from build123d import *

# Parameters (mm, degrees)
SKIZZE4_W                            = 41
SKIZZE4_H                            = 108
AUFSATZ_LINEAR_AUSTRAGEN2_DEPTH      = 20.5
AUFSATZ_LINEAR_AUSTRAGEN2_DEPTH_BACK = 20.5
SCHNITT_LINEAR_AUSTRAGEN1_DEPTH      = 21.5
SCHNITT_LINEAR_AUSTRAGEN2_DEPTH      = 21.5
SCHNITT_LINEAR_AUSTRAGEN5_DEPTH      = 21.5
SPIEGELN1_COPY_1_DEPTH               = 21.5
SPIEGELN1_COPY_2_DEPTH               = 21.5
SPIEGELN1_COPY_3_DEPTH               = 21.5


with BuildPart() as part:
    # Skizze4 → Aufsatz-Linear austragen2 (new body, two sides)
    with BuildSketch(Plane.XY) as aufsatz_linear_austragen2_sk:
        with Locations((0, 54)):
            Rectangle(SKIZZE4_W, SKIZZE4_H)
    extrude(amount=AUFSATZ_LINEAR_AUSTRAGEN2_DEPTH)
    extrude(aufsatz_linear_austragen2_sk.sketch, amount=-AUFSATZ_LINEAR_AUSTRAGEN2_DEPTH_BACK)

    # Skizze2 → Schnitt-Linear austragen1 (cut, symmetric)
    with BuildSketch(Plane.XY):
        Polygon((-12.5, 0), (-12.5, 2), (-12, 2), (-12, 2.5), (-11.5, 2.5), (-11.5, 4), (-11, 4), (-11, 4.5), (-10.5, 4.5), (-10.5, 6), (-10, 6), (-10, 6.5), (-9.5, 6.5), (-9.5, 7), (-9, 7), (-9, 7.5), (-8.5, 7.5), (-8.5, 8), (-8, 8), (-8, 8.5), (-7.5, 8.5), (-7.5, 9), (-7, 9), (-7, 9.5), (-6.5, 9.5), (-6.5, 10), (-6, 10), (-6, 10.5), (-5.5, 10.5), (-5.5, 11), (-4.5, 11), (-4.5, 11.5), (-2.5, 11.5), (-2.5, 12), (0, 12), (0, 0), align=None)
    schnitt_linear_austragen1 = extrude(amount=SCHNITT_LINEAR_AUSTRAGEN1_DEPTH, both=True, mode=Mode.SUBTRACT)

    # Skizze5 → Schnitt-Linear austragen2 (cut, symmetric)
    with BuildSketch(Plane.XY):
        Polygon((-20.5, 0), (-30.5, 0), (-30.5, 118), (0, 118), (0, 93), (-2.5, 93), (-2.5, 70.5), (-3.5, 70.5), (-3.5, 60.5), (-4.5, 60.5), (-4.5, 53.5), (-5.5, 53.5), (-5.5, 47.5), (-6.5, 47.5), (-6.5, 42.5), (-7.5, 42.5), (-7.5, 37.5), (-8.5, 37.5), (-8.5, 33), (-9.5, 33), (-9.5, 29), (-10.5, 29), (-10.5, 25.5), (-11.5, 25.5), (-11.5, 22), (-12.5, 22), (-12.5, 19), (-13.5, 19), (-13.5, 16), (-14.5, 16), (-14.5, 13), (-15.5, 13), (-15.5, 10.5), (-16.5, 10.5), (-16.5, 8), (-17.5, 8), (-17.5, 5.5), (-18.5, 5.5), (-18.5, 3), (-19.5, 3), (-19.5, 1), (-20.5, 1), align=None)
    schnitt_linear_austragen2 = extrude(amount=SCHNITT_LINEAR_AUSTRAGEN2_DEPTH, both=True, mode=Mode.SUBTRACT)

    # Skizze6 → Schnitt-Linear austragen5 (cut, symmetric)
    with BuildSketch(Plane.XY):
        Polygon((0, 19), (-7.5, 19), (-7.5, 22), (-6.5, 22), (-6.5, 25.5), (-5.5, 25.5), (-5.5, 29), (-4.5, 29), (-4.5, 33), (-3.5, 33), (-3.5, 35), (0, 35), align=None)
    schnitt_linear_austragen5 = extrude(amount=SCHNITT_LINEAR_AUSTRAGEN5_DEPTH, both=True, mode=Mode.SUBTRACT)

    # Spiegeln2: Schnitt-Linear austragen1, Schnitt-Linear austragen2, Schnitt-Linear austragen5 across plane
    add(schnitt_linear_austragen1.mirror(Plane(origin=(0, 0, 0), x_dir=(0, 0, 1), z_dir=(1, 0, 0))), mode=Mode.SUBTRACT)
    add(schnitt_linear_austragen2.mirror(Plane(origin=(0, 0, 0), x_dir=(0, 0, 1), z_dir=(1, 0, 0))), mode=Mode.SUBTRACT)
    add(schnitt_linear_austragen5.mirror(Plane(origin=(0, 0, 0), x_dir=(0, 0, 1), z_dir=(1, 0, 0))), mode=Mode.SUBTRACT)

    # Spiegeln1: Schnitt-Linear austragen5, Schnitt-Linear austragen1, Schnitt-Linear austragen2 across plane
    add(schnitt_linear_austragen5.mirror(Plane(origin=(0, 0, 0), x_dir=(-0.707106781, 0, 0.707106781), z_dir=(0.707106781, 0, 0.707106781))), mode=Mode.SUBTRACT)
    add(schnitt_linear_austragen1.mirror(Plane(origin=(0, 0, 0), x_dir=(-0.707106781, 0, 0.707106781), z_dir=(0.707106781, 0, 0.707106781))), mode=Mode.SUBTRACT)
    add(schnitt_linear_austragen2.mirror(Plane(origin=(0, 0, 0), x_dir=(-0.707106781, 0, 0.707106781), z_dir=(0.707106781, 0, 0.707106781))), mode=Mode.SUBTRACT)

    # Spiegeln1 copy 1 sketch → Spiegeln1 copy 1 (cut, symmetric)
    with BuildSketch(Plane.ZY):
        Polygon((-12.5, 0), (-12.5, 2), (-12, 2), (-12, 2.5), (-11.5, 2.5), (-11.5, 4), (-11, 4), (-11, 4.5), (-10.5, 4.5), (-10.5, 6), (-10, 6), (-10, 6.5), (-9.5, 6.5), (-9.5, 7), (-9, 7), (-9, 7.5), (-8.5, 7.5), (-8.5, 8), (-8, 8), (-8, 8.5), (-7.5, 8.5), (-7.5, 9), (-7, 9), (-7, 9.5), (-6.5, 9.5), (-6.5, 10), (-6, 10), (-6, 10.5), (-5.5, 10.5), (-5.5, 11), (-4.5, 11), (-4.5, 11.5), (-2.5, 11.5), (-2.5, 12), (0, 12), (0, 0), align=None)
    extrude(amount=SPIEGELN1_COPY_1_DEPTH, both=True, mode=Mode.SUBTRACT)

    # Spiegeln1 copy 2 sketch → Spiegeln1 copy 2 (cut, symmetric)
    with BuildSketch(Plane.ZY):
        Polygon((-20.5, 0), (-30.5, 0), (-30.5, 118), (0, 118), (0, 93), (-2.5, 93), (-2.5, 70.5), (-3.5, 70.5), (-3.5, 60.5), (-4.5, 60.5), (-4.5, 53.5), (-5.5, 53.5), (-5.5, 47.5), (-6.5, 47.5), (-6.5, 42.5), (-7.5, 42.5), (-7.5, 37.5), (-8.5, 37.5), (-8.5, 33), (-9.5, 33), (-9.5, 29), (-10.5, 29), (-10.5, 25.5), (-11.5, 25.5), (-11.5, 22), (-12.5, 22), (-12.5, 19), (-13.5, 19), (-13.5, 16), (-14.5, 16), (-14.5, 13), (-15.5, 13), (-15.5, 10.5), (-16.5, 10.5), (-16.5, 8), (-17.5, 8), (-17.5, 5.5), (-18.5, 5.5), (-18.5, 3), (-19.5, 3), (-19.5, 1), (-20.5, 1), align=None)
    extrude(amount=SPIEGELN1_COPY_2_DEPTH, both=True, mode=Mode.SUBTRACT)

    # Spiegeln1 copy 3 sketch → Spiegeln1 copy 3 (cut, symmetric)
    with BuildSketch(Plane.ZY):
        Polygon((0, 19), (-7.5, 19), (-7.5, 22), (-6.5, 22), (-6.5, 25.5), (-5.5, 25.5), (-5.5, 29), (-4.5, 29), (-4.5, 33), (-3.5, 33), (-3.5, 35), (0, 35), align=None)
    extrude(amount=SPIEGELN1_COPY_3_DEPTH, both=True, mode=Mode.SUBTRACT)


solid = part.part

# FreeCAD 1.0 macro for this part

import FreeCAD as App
import Part
import Sketcher

doc = App.newDocument("Part")
body = doc.addObject("PartDesign::Body", "Body")

# Sketch on XY plane
sketch1 = body.newObject("Sketcher::SketchObject", "Sketch")
sketch1.AttachmentSupport = (doc.getObject("XY_Plane"), [""])
sketch1.MapMode = "FlatFace"
sketch1.addGeometry([
    Part.LineSegment(App.Vector(-20, 108, 0), App.Vector(-20, 0, 0)),
    Part.LineSegment(App.Vector(-20, 0, 0), App.Vector(20, 0, 0)),
    Part.LineSegment(App.Vector(20, 0, 0), App.Vector(20, 108, 0)),
    Part.LineSegment(App.Vector(20, 108, 0), App.Vector(-20, 108, 0)),
], False)
sketch1.addConstraint([
    Sketcher.Constraint("Coincident", 0, 2, 1, 1),
    Sketcher.Constraint("Coincident", 1, 2, 2, 1),
    Sketcher.Constraint("Coincident", 2, 2, 3, 1),
    Sketcher.Constraint("Coincident", 3, 2, 0, 1),
    Sketcher.Constraint("Vertical", 0),
    Sketcher.Constraint("Horizontal", 1),
    Sketcher.Constraint("Vertical", 2),
    Sketcher.Constraint("Horizontal", 3),
    Sketcher.Constraint("Symmetric", 0, 2, 1, 2, -1, 1),
    Sketcher.Constraint("DistanceX", 1, 1, 1, 2, 41.0),
    Sketcher.Constraint("DistanceY", 0, 2, 0, 1, 108.0),
])
pad1 = body.newObject("PartDesign::Pad", "Pad")
pad1.Profile = sketch1
pad1.Type = "TwoLengths"
pad1.Length = 20.5
pad1.Length2 = 20.5

# Sketch on XY plane
sketch2 = body.newObject("Sketcher::SketchObject", "Sketch001")
sketch2.AttachmentSupport = (doc.getObject("XY_Plane"), [""])
sketch2.MapMode = "FlatFace"
sketch2.addGeometry([
    Part.LineSegment(App.Vector(-12.5, 2, 0), App.Vector(-12.5, 0, 0)),  # 0
    Part.LineSegment(App.Vector(-12.5, 0, 0), App.Vector(0, 0, 0)),  # 1
    Part.LineSegment(App.Vector(0, 0, 0), App.Vector(0, 12, 0)),  # 2
    Part.LineSegment(App.Vector(0, 12, 0), App.Vector(-2.5, 12, 0)),  # 3
    Part.LineSegment(App.Vector(-2.5, 12, 0), App.Vector(-2.5, 11.5, 0)),  # 4
    Part.LineSegment(App.Vector(-2.5, 11.5, 0), App.Vector(-4.5, 11.5, 0)),  # 5
    Part.LineSegment(App.Vector(-4.5, 11.5, 0), App.Vector(-4.5, 11, 0)),  # 6
    Part.LineSegment(App.Vector(-4.5, 11, 0), App.Vector(-5.5, 11, 0)),  # 7
    Part.LineSegment(App.Vector(-5.5, 11, 0), App.Vector(-5.5, 10.5, 0)),  # 8
    Part.LineSegment(App.Vector(-5.5, 10.5, 0), App.Vector(-6, 10.5, 0)),  # 9
    Part.LineSegment(App.Vector(-6, 10.5, 0), App.Vector(-6, 10, 0)),  # 10
    Part.LineSegment(App.Vector(-6, 10, 0), App.Vector(-6.5, 10, 0)),  # 11
    Part.LineSegment(App.Vector(-6.5, 10, 0), App.Vector(-6.5, 9.5, 0)),  # 12
    Part.LineSegment(App.Vector(-6.5, 9.5, 0), App.Vector(-7, 9.5, 0)),  # 13
    Part.LineSegment(App.Vector(-7, 9.5, 0), App.Vector(-7, 9, 0)),  # 14
    Part.LineSegment(App.Vector(-7, 9, 0), App.Vector(-7.5, 9, 0)),  # 15
    Part.LineSegment(App.Vector(-7.5, 9, 0), App.Vector(-7.5, 8.5, 0)),  # 16
    Part.LineSegment(App.Vector(-7.5, 8.5, 0), App.Vector(-8, 8.5, 0)),  # 17
    Part.LineSegment(App.Vector(-8, 8.5, 0), App.Vector(-8, 8, 0)),  # 18
    Part.LineSegment(App.Vector(-8, 8, 0), App.Vector(-8.5, 8, 0)),  # 19
    Part.LineSegment(App.Vector(-8.5, 8, 0), App.Vector(-8.5, 7.5, 0)),  # 20
    Part.LineSegment(App.Vector(-8.5, 7.5, 0), App.Vector(-9, 7.5, 0)),  # 21
    Part.LineSegment(App.Vector(-9, 7.5, 0), App.Vector(-9, 7, 0)),  # 22
    Part.LineSegment(App.Vector(-9, 7, 0), App.Vector(-9.5, 7, 0)),  # 23
    Part.LineSegment(App.Vector(-9.5, 7, 0), App.Vector(-9.5, 6.5, 0)),  # 24
    Part.LineSegment(App.Vector(-9.5, 6.5, 0), App.Vector(-10, 6.5, 0)),  # 25
    Part.LineSegment(App.Vector(-10, 6.5, 0), App.Vector(-10, 6, 0)),  # 26
    Part.LineSegment(App.Vector(-10, 6, 0), App.Vector(-10.5, 6, 0)),  # 27
    Part.LineSegment(App.Vector(-10.5, 6, 0), App.Vector(-10.5, 4.5, 0)),  # 28
    Part.LineSegment(App.Vector(-10.5, 4.5, 0), App.Vector(-11, 4.5, 0)),  # 29
    Part.LineSegment(App.Vector(-11, 4.5, 0), App.Vector(-11, 4, 0)),  # 30
    Part.LineSegment(App.Vector(-11, 4, 0), App.Vector(-11.5, 4, 0)),  # 31
    Part.LineSegment(App.Vector(-11.5, 4, 0), App.Vector(-11.5, 2.5, 0)),  # 32
    Part.LineSegment(App.Vector(-11.5, 2.5, 0), App.Vector(-12, 2.5, 0)),  # 33
    Part.LineSegment(App.Vector(-12, 2.5, 0), App.Vector(-12, 2, 0)),  # 34
    Part.LineSegment(App.Vector(-12, 2, 0), App.Vector(-12.5, 2, 0)),  # 35
], False)
sketch2.addConstraint([
    Sketcher.Constraint("Coincident", 0, 2, 1, 1),
    Sketcher.Constraint("Coincident", 1, 2, 2, 1),
    Sketcher.Constraint("Coincident", 2, 2, 3, 1),
    Sketcher.Constraint("Coincident", 3, 2, 4, 1),
    Sketcher.Constraint("Coincident", 4, 2, 5, 1),
    Sketcher.Constraint("Coincident", 5, 2, 6, 1),
    Sketcher.Constraint("Coincident", 6, 2, 7, 1),
    Sketcher.Constraint("Coincident", 7, 2, 8, 1),
    Sketcher.Constraint("Coincident", 8, 2, 9, 1),
    Sketcher.Constraint("Coincident", 9, 2, 10, 1),
    Sketcher.Constraint("Coincident", 10, 2, 11, 1),
    Sketcher.Constraint("Coincident", 11, 2, 12, 1),
    Sketcher.Constraint("Coincident", 12, 2, 13, 1),
    Sketcher.Constraint("Coincident", 13, 2, 14, 1),
    Sketcher.Constraint("Coincident", 14, 2, 15, 1),
    Sketcher.Constraint("Coincident", 15, 2, 16, 1),
    Sketcher.Constraint("Coincident", 16, 2, 17, 1),
    Sketcher.Constraint("Coincident", 17, 2, 18, 1),
    Sketcher.Constraint("Coincident", 18, 2, 19, 1),
    Sketcher.Constraint("Coincident", 19, 2, 20, 1),
    Sketcher.Constraint("Coincident", 20, 2, 21, 1),
    Sketcher.Constraint("Coincident", 21, 2, 22, 1),
    Sketcher.Constraint("Coincident", 22, 2, 23, 1),
    Sketcher.Constraint("Coincident", 23, 2, 24, 1),
    Sketcher.Constraint("Coincident", 24, 2, 25, 1),
    Sketcher.Constraint("Coincident", 25, 2, 26, 1),
    Sketcher.Constraint("Coincident", 26, 2, 27, 1),
    Sketcher.Constraint("Coincident", 27, 2, 28, 1),
    Sketcher.Constraint("Coincident", 28, 2, 29, 1),
    Sketcher.Constraint("Coincident", 29, 2, 30, 1),
    Sketcher.Constraint("Coincident", 30, 2, 31, 1),
    Sketcher.Constraint("Coincident", 31, 2, 32, 1),
    Sketcher.Constraint("Coincident", 32, 2, 33, 1),
    Sketcher.Constraint("Coincident", 33, 2, 34, 1),
    Sketcher.Constraint("Coincident", 34, 2, 35, 1),
    Sketcher.Constraint("Coincident", 35, 2, 0, 1),
    Sketcher.Constraint("Vertical", 0),
    Sketcher.Constraint("Horizontal", 1),
    Sketcher.Constraint("Vertical", 2),
    Sketcher.Constraint("Horizontal", 3),
    Sketcher.Constraint("Vertical", 4),
    Sketcher.Constraint("Horizontal", 5),
    Sketcher.Constraint("Vertical", 6),
    Sketcher.Constraint("Horizontal", 7),
    Sketcher.Constraint("Vertical", 8),
    Sketcher.Constraint("Horizontal", 9),
    Sketcher.Constraint("Vertical", 10),
    Sketcher.Constraint("Horizontal", 11),
    Sketcher.Constraint("Vertical", 12),
    Sketcher.Constraint("Horizontal", 13),
    Sketcher.Constraint("Vertical", 14),
    Sketcher.Constraint("Horizontal", 15),
    Sketcher.Constraint("Vertical", 16),
    Sketcher.Constraint("Horizontal", 17),
    Sketcher.Constraint("Vertical", 18),
    Sketcher.Constraint("Horizontal", 19),
    Sketcher.Constraint("Vertical", 20),
    Sketcher.Constraint("Horizontal", 21),
    Sketcher.Constraint("Vertical", 22),
    Sketcher.Constraint("Horizontal", 23),
    Sketcher.Constraint("Vertical", 24),
    Sketcher.Constraint("Horizontal", 25),
    Sketcher.Constraint("Vertical", 26),
    Sketcher.Constraint("Horizontal", 27),
    Sketcher.Constraint("Vertical", 28),
    Sketcher.Constraint("Horizontal", 29),
    Sketcher.Constraint("Vertical", 30),
    Sketcher.Constraint("Horizontal", 31),
    Sketcher.Constraint("Vertical", 32),
    Sketcher.Constraint("Horizontal", 33),
    Sketcher.Constraint("Vertical", 34),
    Sketcher.Constraint("Horizontal", 35),
    Sketcher.Constraint("Coincident", 1, 2, -1, 1),
    Sketcher.Constraint("Equal", 9, 11),
    Sketcher.Constraint("Equal", 11, 13),
    Sketcher.Constraint("Equal", 13, 15),
    Sketcher.Constraint("Equal", 15, 17),
    Sketcher.Constraint("Equal", 17, 19),
    Sketcher.Constraint("Equal", 19, 21),
    Sketcher.Constraint("Equal", 21, 23),
    Sketcher.Constraint("Equal", 23, 25),
    Sketcher.Constraint("Equal", 25, 27),
    Sketcher.Constraint("Equal", 27, 29),
    Sketcher.Constraint("Equal", 29, 31),
    Sketcher.Constraint("Equal", 31, 33),
    Sketcher.Constraint("Equal", 33, 35),
    Sketcher.Constraint("Equal", 5, 0),
    Sketcher.Constraint("Equal", 35, 4),
    Sketcher.Constraint("Equal", 4, 6),
    Sketcher.Constraint("Equal", 6, 8),
    Sketcher.Constraint("Equal", 8, 10),
    Sketcher.Constraint("Equal", 10, 12),
    Sketcher.Constraint("Equal", 12, 14),
    Sketcher.Constraint("Equal", 14, 16),
    Sketcher.Constraint("Equal", 16, 18),
    Sketcher.Constraint("Equal", 18, 20),
    Sketcher.Constraint("Equal", 20, 22),
    Sketcher.Constraint("Equal", 22, 24),
    Sketcher.Constraint("Equal", 24, 26),
    Sketcher.Constraint("Equal", 26, 30),
    Sketcher.Constraint("Equal", 28, 32),
    Sketcher.Constraint("Equal", 30, 34),
    Sketcher.Constraint("DistanceX", 5, 2, 5, 1, 2.0),
    Sketcher.Constraint("DistanceX", 7, 2, 7, 1, 1.0),
    Sketcher.Constraint("DistanceY", 2, 1, 2, 2, 12.0),
    Sketcher.Constraint("DistanceX", 1, 1, 1, 2, 12.5),
    Sketcher.Constraint("DistanceX", 3, 2, 3, 1, 2.5),
])
pocket1 = body.newObject("PartDesign::Pocket", "Pocket")
pocket1.Profile = sketch2
pocket1.Length = 43
pocket1.Midplane = True

# Sketch on XY plane
sketch3 = body.newObject("Sketcher::SketchObject", "Sketch002")
sketch3.AttachmentSupport = (doc.getObject("XY_Plane"), [""])
sketch3.MapMode = "FlatFace"
sketch3.addGeometry([
    Part.LineSegment(App.Vector(-30.5, 0, 0), App.Vector(-20.5, 0, 0)),  # 0
    Part.LineSegment(App.Vector(-20.5, 0, 0), App.Vector(-20.5, 1, 0)),  # 1
    Part.LineSegment(App.Vector(-20.5, 1, 0), App.Vector(-19.5, 1, 0)),  # 2
    Part.LineSegment(App.Vector(-19.5, 1, 0), App.Vector(-19.5, 3, 0)),  # 3
    Part.LineSegment(App.Vector(-19.5, 3, 0), App.Vector(-18.5, 3, 0)),  # 4
    Part.LineSegment(App.Vector(-18.5, 3, 0), App.Vector(-18.5, 5.5, 0)),  # 5
    Part.LineSegment(App.Vector(-18.5, 5.5, 0), App.Vector(-17.5, 5.5, 0)),  # 6
    Part.LineSegment(App.Vector(-17.5, 5.5, 0), App.Vector(-17.5, 8, 0)),  # 7
    Part.LineSegment(App.Vector(-17.5, 8, 0), App.Vector(-16.5, 8, 0)),  # 8
    Part.LineSegment(App.Vector(-16.5, 8, 0), App.Vector(-16.5, 10.5, 0)),  # 9
    Part.LineSegment(App.Vector(-16.5, 10.5, 0), App.Vector(-15.5, 10.5, 0)),  # 10
    Part.LineSegment(App.Vector(-15.5, 10.5, 0), App.Vector(-15.5, 13, 0)),  # 11
    Part.LineSegment(App.Vector(-15.5, 13, 0), App.Vector(-14.5, 13, 0)),  # 12
    Part.LineSegment(App.Vector(-14.5, 13, 0), App.Vector(-14.5, 16, 0)),  # 13
    Part.LineSegment(App.Vector(-14.5, 16, 0), App.Vector(-13.5, 16, 0)),  # 14
    Part.LineSegment(App.Vector(-13.5, 16, 0), App.Vector(-13.5, 19, 0)),  # 15
    Part.LineSegment(App.Vector(-13.5, 19, 0), App.Vector(-12.5, 19, 0)),  # 16
    Part.LineSegment(App.Vector(-12.5, 19, 0), App.Vector(-12.5, 22, 0)),  # 17
    Part.LineSegment(App.Vector(-12.5, 22, 0), App.Vector(-11.5, 22, 0)),  # 18
    Part.LineSegment(App.Vector(-11.5, 22, 0), App.Vector(-11.5, 25.5, 0)),  # 19
    Part.LineSegment(App.Vector(-11.5, 25.5, 0), App.Vector(-10.5, 25.5, 0)),  # 20
    Part.LineSegment(App.Vector(-10.5, 25.5, 0), App.Vector(-10.5, 29, 0)),  # 21
    Part.LineSegment(App.Vector(-10.5, 29, 0), App.Vector(-9.5, 29, 0)),  # 22
    Part.LineSegment(App.Vector(-9.5, 29, 0), App.Vector(-9.5, 33, 0)),  # 23
    Part.LineSegment(App.Vector(-9.5, 33, 0), App.Vector(-8.5, 33, 0)),  # 24
    Part.LineSegment(App.Vector(-8.5, 33, 0), App.Vector(-8.5, 37.5, 0)),  # 25
    Part.LineSegment(App.Vector(-8.5, 37.5, 0), App.Vector(-7.5, 37.5, 0)),  # 26
    Part.LineSegment(App.Vector(-7.5, 37.5, 0), App.Vector(-7.5, 42.5, 0)),  # 27
    Part.LineSegment(App.Vector(-7.5, 42.5, 0), App.Vector(-6.5, 42.5, 0)),  # 28
    Part.LineSegment(App.Vector(-6.5, 42.5, 0), App.Vector(-6.5, 47.5, 0)),  # 29
    Part.LineSegment(App.Vector(-6.5, 47.5, 0), App.Vector(-5.5, 47.5, 0)),  # 30
    Part.LineSegment(App.Vector(-5.5, 47.5, 0), App.Vector(-5.5, 53.5, 0)),  # 31
    Part.LineSegment(App.Vector(-5.5, 53.5, 0), App.Vector(-4.5, 53.5, 0)),  # 32
    Part.LineSegment(App.Vector(-4.5, 53.5, 0), App.Vector(-4.5, 60.5, 0)),  # 33
    Part.LineSegment(App.Vector(-4.5, 60.5, 0), App.Vector(-3.5, 60.5, 0)),  # 34
    Part.LineSegment(App.Vector(-3.5, 60.5, 0), App.Vector(-3.5, 70.5, 0)),  # 35
    Part.LineSegment(App.Vector(-3.5, 70.5, 0), App.Vector(-2.5, 70.5, 0)),  # 36
    Part.LineSegment(App.Vector(-2.5, 70.5, 0), App.Vector(-2.5, 93, 0)),  # 37
    Part.LineSegment(App.Vector(-2.5, 93, 0), App.Vector(0, 93, 0)),  # 38
    Part.LineSegment(App.Vector(0, 93, 0), App.Vector(0, 118, 0)),  # 39
    Part.LineSegment(App.Vector(0, 118, 0), App.Vector(-30.5, 118, 0)),  # 40
    Part.LineSegment(App.Vector(-30.5, 118, 0), App.Vector(-30.5, 0, 0)),  # 41
], False)
sketch3.addConstraint([
    Sketcher.Constraint("Coincident", 0, 2, 1, 1),
    Sketcher.Constraint("Coincident", 1, 2, 2, 1),
    Sketcher.Constraint("Coincident", 2, 2, 3, 1),
    Sketcher.Constraint("Coincident", 3, 2, 4, 1),
    Sketcher.Constraint("Coincident", 4, 2, 5, 1),
    Sketcher.Constraint("Coincident", 5, 2, 6, 1),
    Sketcher.Constraint("Coincident", 6, 2, 7, 1),
    Sketcher.Constraint("Coincident", 7, 2, 8, 1),
    Sketcher.Constraint("Coincident", 8, 2, 9, 1),
    Sketcher.Constraint("Coincident", 9, 2, 10, 1),
    Sketcher.Constraint("Coincident", 10, 2, 11, 1),
    Sketcher.Constraint("Coincident", 11, 2, 12, 1),
    Sketcher.Constraint("Coincident", 12, 2, 13, 1),
    Sketcher.Constraint("Coincident", 13, 2, 14, 1),
    Sketcher.Constraint("Coincident", 14, 2, 15, 1),
    Sketcher.Constraint("Coincident", 15, 2, 16, 1),
    Sketcher.Constraint("Coincident", 16, 2, 17, 1),
    Sketcher.Constraint("Coincident", 17, 2, 18, 1),
    Sketcher.Constraint("Coincident", 18, 2, 19, 1),
    Sketcher.Constraint("Coincident", 19, 2, 20, 1),
    Sketcher.Constraint("Coincident", 20, 2, 21, 1),
    Sketcher.Constraint("Coincident", 21, 2, 22, 1),
    Sketcher.Constraint("Coincident", 22, 2, 23, 1),
    Sketcher.Constraint("Coincident", 23, 2, 24, 1),
    Sketcher.Constraint("Coincident", 24, 2, 25, 1),
    Sketcher.Constraint("Coincident", 25, 2, 26, 1),
    Sketcher.Constraint("Coincident", 26, 2, 27, 1),
    Sketcher.Constraint("Coincident", 27, 2, 28, 1),
    Sketcher.Constraint("Coincident", 28, 2, 29, 1),
    Sketcher.Constraint("Coincident", 29, 2, 30, 1),
    Sketcher.Constraint("Coincident", 30, 2, 31, 1),
    Sketcher.Constraint("Coincident", 31, 2, 32, 1),
    Sketcher.Constraint("Coincident", 32, 2, 33, 1),
    Sketcher.Constraint("Coincident", 33, 2, 34, 1),
    Sketcher.Constraint("Coincident", 34, 2, 35, 1),
    Sketcher.Constraint("Coincident", 35, 2, 36, 1),
    Sketcher.Constraint("Coincident", 36, 2, 37, 1),
    Sketcher.Constraint("Coincident", 37, 2, 38, 1),
    Sketcher.Constraint("Coincident", 38, 2, 39, 1),
    Sketcher.Constraint("Coincident", 39, 2, 40, 1),
    Sketcher.Constraint("Coincident", 40, 2, 41, 1),
    Sketcher.Constraint("Coincident", 41, 2, 0, 1),
    Sketcher.Constraint("Horizontal", 0),
    Sketcher.Constraint("Vertical", 1),
    Sketcher.Constraint("Horizontal", 2),
    Sketcher.Constraint("Vertical", 3),
    Sketcher.Constraint("Horizontal", 4),
    Sketcher.Constraint("Vertical", 5),
    Sketcher.Constraint("Horizontal", 6),
    Sketcher.Constraint("Vertical", 7),
    Sketcher.Constraint("Horizontal", 8),
    Sketcher.Constraint("Vertical", 9),
    Sketcher.Constraint("Horizontal", 10),
    Sketcher.Constraint("Vertical", 11),
    Sketcher.Constraint("Horizontal", 12),
    Sketcher.Constraint("Vertical", 13),
    Sketcher.Constraint("Horizontal", 14),
    Sketcher.Constraint("Vertical", 15),
    Sketcher.Constraint("Horizontal", 16),
    Sketcher.Constraint("Vertical", 17),
    Sketcher.Constraint("Horizontal", 18),
    Sketcher.Constraint("Vertical", 19),
    Sketcher.Constraint("Horizontal", 20),
    Sketcher.Constraint("Vertical", 21),
    Sketcher.Constraint("Horizontal", 22),
    Sketcher.Constraint("Vertical", 23),
    Sketcher.Constraint("Horizontal", 24),
    Sketcher.Constraint("Vertical", 25),
    Sketcher.Constraint("Horizontal", 26),
    Sketcher.Constraint("Vertical", 27),
    Sketcher.Constraint("Horizontal", 28),
    Sketcher.Constraint("Vertical", 29),
    Sketcher.Constraint("Horizontal", 30),
    Sketcher.Constraint("Vertical", 31),
    Sketcher.Constraint("Horizontal", 32),
    Sketcher.Constraint("Vertical", 33),
    Sketcher.Constraint("Horizontal", 34),
    Sketcher.Constraint("Vertical", 35),
    Sketcher.Constraint("Horizontal", 36),
    Sketcher.Constraint("Vertical", 37),
    Sketcher.Constraint("Horizontal", 38),
    Sketcher.Constraint("Vertical", 39),
    Sketcher.Constraint("Horizontal", 40),
    Sketcher.Constraint("Vertical", 41),
    Sketcher.Constraint("PointOnObject", 0, 2, -1),
    Sketcher.Constraint("PointOnObject", 38, 2, -2),
    Sketcher.Constraint("Equal", 2, 4),
    Sketcher.Constraint("Equal", 4, 6),
    Sketcher.Constraint("Equal", 6, 8),
    Sketcher.Constraint("Equal", 8, 10),
    Sketcher.Constraint("Equal", 10, 12),
    Sketcher.Constraint("Equal", 12, 14),
    Sketcher.Constraint("Equal", 14, 16),
    Sketcher.Constraint("Equal", 16, 18),
    Sketcher.Constraint("Equal", 18, 20),
    Sketcher.Constraint("Equal", 20, 22),
    Sketcher.Constraint("Equal", 22, 24),
    Sketcher.Constraint("Equal", 24, 26),
    Sketcher.Constraint("Equal", 26, 28),
    Sketcher.Constraint("Equal", 28, 30),
    Sketcher.Constraint("Equal", 30, 32),
    Sketcher.Constraint("Equal", 32, 34),
    Sketcher.Constraint("Equal", 34, 36),
    Sketcher.Constraint("Equal", 36, 1),
    Sketcher.Constraint("Equal", 38, 5),
    Sketcher.Constraint("Equal", 5, 7),
    Sketcher.Constraint("Equal", 7, 9),
    Sketcher.Constraint("Equal", 9, 11),
    Sketcher.Constraint("Equal", 13, 15),
    Sketcher.Constraint("Equal", 15, 17),
    Sketcher.Constraint("Equal", 19, 21),
    Sketcher.Constraint("Equal", 27, 29),
    Sketcher.Constraint("Equal", 0, 35),
    Sketcher.Constraint("DistanceX", 0, 1, 0, 2, 10.0),
    Sketcher.Constraint("DistanceX", 2, 1, 2, 2, 1.0),
    Sketcher.Constraint("DistanceY", 3, 1, 3, 2, 2.0),
    Sketcher.Constraint("DistanceY", 13, 1, 13, 2, 3.0),
    Sketcher.Constraint("DistanceY", 23, 1, 23, 2, 4.0),
    Sketcher.Constraint("DistanceY", 27, 1, 27, 2, 5.0),
    Sketcher.Constraint("DistanceY", 31, 1, 31, 2, 6.0),
    Sketcher.Constraint("DistanceY", 33, 1, 33, 2, 7.0),
    Sketcher.Constraint("DistanceY", 39, 1, 39, 2, 25.0),
    Sketcher.Constraint("DistanceY", 41, 2, 41, 1, 118.0),
    Sketcher.Constraint("DistanceX", 38, 1, 38, 2, 2.5),
    Sketcher.Constraint("DistanceY", 19, 1, 19, 2, 3.5),
    Sketcher.Constraint("DistanceY", 25, 1, 25, 2, 4.5),
])
pocket2 = body.newObject("PartDesign::Pocket", "Pocket001")
pocket2.Profile = sketch3
pocket2.Length = 43
pocket2.Midplane = True

# Sketch on XY plane
sketch4 = body.newObject("Sketcher::SketchObject", "Sketch003")
sketch4.AttachmentSupport = (doc.getObject("XY_Plane"), [""])
sketch4.MapMode = "FlatFace"
sketch4.addGeometry([
    Part.LineSegment(App.Vector(-7.5, 19, 0), App.Vector(0, 19, 0)),  # 0
    Part.LineSegment(App.Vector(0, 19, 0), App.Vector(0, 35, 0)),  # 1
    Part.LineSegment(App.Vector(0, 35, 0), App.Vector(-3.5, 35, 0)),  # 2
    Part.LineSegment(App.Vector(-3.5, 35, 0), App.Vector(-3.5, 33, 0)),  # 3
    Part.LineSegment(App.Vector(-3.5, 33, 0), App.Vector(-4.5, 33, 0)),  # 4
    Part.LineSegment(App.Vector(-4.5, 33, 0), App.Vector(-4.5, 29, 0)),  # 5
    Part.LineSegment(App.Vector(-4.5, 29, 0), App.Vector(-5.5, 29, 0)),  # 6
    Part.LineSegment(App.Vector(-5.5, 29, 0), App.Vector(-5.5, 25.5, 0)),  # 7
    Part.LineSegment(App.Vector(-5.5, 25.5, 0), App.Vector(-6.5, 25.5, 0)),  # 8
    Part.LineSegment(App.Vector(-6.5, 25.5, 0), App.Vector(-6.5, 22, 0)),  # 9
    Part.LineSegment(App.Vector(-6.5, 22, 0), App.Vector(-7.5, 22, 0)),  # 10
    Part.LineSegment(App.Vector(-7.5, 22, 0), App.Vector(-7.5, 19, 0)),  # 11
], False)
sketch4.addConstraint([
    Sketcher.Constraint("Coincident", 0, 2, 1, 1),
    Sketcher.Constraint("Coincident", 1, 2, 2, 1),
    Sketcher.Constraint("Coincident", 2, 2, 3, 1),
    Sketcher.Constraint("Coincident", 3, 2, 4, 1),
    Sketcher.Constraint("Coincident", 4, 2, 5, 1),
    Sketcher.Constraint("Coincident", 5, 2, 6, 1),
    Sketcher.Constraint("Coincident", 6, 2, 7, 1),
    Sketcher.Constraint("Coincident", 7, 2, 8, 1),
    Sketcher.Constraint("Coincident", 8, 2, 9, 1),
    Sketcher.Constraint("Coincident", 9, 2, 10, 1),
    Sketcher.Constraint("Coincident", 10, 2, 11, 1),
    Sketcher.Constraint("Coincident", 11, 2, 0, 1),
    Sketcher.Constraint("Horizontal", 0),
    Sketcher.Constraint("Vertical", 1),
    Sketcher.Constraint("Horizontal", 2),
    Sketcher.Constraint("Vertical", 3),
    Sketcher.Constraint("Horizontal", 4),
    Sketcher.Constraint("Vertical", 5),
    Sketcher.Constraint("Horizontal", 6),
    Sketcher.Constraint("Vertical", 7),
    Sketcher.Constraint("Horizontal", 8),
    Sketcher.Constraint("Vertical", 9),
    Sketcher.Constraint("Horizontal", 10),
    Sketcher.Constraint("Vertical", 11),
    Sketcher.Constraint("PointOnObject", 0, 2, -2),
    Sketcher.Constraint("Equal", 4, 6),
    Sketcher.Constraint("Equal", 6, 8),
    Sketcher.Constraint("Equal", 8, 10),
    Sketcher.Constraint("Equal", 2, 7),
    Sketcher.Constraint("Equal", 7, 9),
    Sketcher.Constraint("DistanceX", 4, 2, 4, 1, 1.0),
    Sketcher.Constraint("DistanceY", 1, 1, 1, 2, 16.0),
    Sketcher.Constraint("DistanceY", 3, 2, 3, 1, 2.0),
    Sketcher.Constraint("DistanceY", 5, 2, 5, 1, 4.0),
    Sketcher.Constraint("DistanceY", 11, 2, 11, 1, 3.0),
    Sketcher.Constraint("DistanceY", -1, 1, 0, 2, 19.0),
])
pocket3 = body.newObject("PartDesign::Pocket", "Pocket002")
pocket3.Profile = sketch4
pocket3.Length = 43
pocket3.Midplane = True
doc.recompute()

mirrored = body.newObject("PartDesign::Mirrored", "Mirrored")
mirrored.Originals = [pocket1, pocket2, pocket3]
mirrored.MirrorPlane = (doc.getObject("YZ_Plane"), [""])
body.Tip = mirrored
doc.recompute()

datumplane = body.newObject("PartDesign::Plane", "DatumPlane")
datumplane.Placement = App.Placement(App.Vector(0, 0, 0), App.Rotation(App.Vector(-0.707106781, 0, 0.707106781), App.Vector(0, -1, 0), App.Vector(0.707106781, 0, 0.707106781), "ZXY"))
mirrored2 = body.newObject("PartDesign::Mirrored", "Mirrored001")
mirrored2.Originals = [pocket3, pocket1, pocket2]
mirrored2.MirrorPlane = (datumplane, [""])
body.Tip = mirrored2

# Sketch on YZ plane
sketch5 = body.newObject("Sketcher::SketchObject", "Sketch004")
sketch5.AttachmentSupport = (doc.getObject("YZ_Plane"), [""])
sketch5.MapMode = "FlatFace"
sketch5.addGeometry([
    Part.LineSegment(App.Vector(2, -12.5, 0), App.Vector(0, -12.5, 0)),  # 0
    Part.LineSegment(App.Vector(0, -12.5, 0), App.Vector(0, 0, 0)),  # 1
    Part.LineSegment(App.Vector(0, 0, 0), App.Vector(12, 0, 0)),  # 2
    Part.LineSegment(App.Vector(12, 0, 0), App.Vector(12, -2.5, 0)),  # 3
    Part.LineSegment(App.Vector(12, -2.5, 0), App.Vector(11.5, -2.5, 0)),  # 4
    Part.LineSegment(App.Vector(11.5, -2.5, 0), App.Vector(11.5, -4.5, 0)),  # 5
    Part.LineSegment(App.Vector(11.5, -4.5, 0), App.Vector(11, -4.5, 0)),  # 6
    Part.LineSegment(App.Vector(11, -4.5, 0), App.Vector(11, -5.5, 0)),  # 7
    Part.LineSegment(App.Vector(11, -5.5, 0), App.Vector(10.5, -5.5, 0)),  # 8
    Part.LineSegment(App.Vector(10.5, -5.5, 0), App.Vector(10.5, -6, 0)),  # 9
    Part.LineSegment(App.Vector(10.5, -6, 0), App.Vector(10, -6, 0)),  # 10
    Part.LineSegment(App.Vector(10, -6, 0), App.Vector(10, -6.5, 0)),  # 11
    Part.LineSegment(App.Vector(10, -6.5, 0), App.Vector(9.5, -6.5, 0)),  # 12
    Part.LineSegment(App.Vector(9.5, -6.5, 0), App.Vector(9.5, -7, 0)),  # 13
    Part.LineSegment(App.Vector(9.5, -7, 0), App.Vector(9, -7, 0)),  # 14
    Part.LineSegment(App.Vector(9, -7, 0), App.Vector(9, -7.5, 0)),  # 15
    Part.LineSegment(App.Vector(9, -7.5, 0), App.Vector(8.5, -7.5, 0)),  # 16
    Part.LineSegment(App.Vector(8.5, -7.5, 0), App.Vector(8.5, -8, 0)),  # 17
    Part.LineSegment(App.Vector(8.5, -8, 0), App.Vector(8, -8, 0)),  # 18
    Part.LineSegment(App.Vector(8, -8, 0), App.Vector(8, -8.5, 0)),  # 19
    Part.LineSegment(App.Vector(8, -8.5, 0), App.Vector(7.5, -8.5, 0)),  # 20
    Part.LineSegment(App.Vector(7.5, -8.5, 0), App.Vector(7.5, -9, 0)),  # 21
    Part.LineSegment(App.Vector(7.5, -9, 0), App.Vector(7, -9, 0)),  # 22
    Part.LineSegment(App.Vector(7, -9, 0), App.Vector(7, -9.5, 0)),  # 23
    Part.LineSegment(App.Vector(7, -9.5, 0), App.Vector(6.5, -9.5, 0)),  # 24
    Part.LineSegment(App.Vector(6.5, -9.5, 0), App.Vector(6.5, -10, 0)),  # 25
    Part.LineSegment(App.Vector(6.5, -10, 0), App.Vector(6, -10, 0)),  # 26
    Part.LineSegment(App.Vector(6, -10, 0), App.Vector(6, -10.5, 0)),  # 27
    Part.LineSegment(App.Vector(6, -10.5, 0), App.Vector(4.5, -10.5, 0)),  # 28
    Part.LineSegment(App.Vector(4.5, -10.5, 0), App.Vector(4.5, -11, 0)),  # 29
    Part.LineSegment(App.Vector(4.5, -11, 0), App.Vector(4, -11, 0)),  # 30
    Part.LineSegment(App.Vector(4, -11, 0), App.Vector(4, -11.5, 0)),  # 31
    Part.LineSegment(App.Vector(4, -11.5, 0), App.Vector(2.5, -11.5, 0)),  # 32
    Part.LineSegment(App.Vector(2.5, -11.5, 0), App.Vector(2.5, -12, 0)),  # 33
    Part.LineSegment(App.Vector(2.5, -12, 0), App.Vector(2, -12, 0)),  # 34
    Part.LineSegment(App.Vector(2, -12, 0), App.Vector(2, -12.5, 0)),  # 35
], False)
sketch5.addConstraint([
    Sketcher.Constraint("Coincident", 0, 2, 1, 1),
    Sketcher.Constraint("Coincident", 1, 2, 2, 1),
    Sketcher.Constraint("Coincident", 2, 2, 3, 1),
    Sketcher.Constraint("Coincident", 3, 2, 4, 1),
    Sketcher.Constraint("Coincident", 4, 2, 5, 1),
    Sketcher.Constraint("Coincident", 5, 2, 6, 1),
    Sketcher.Constraint("Coincident", 6, 2, 7, 1),
    Sketcher.Constraint("Coincident", 7, 2, 8, 1),
    Sketcher.Constraint("Coincident", 8, 2, 9, 1),
    Sketcher.Constraint("Coincident", 9, 2, 10, 1),
    Sketcher.Constraint("Coincident", 10, 2, 11, 1),
    Sketcher.Constraint("Coincident", 11, 2, 12, 1),
    Sketcher.Constraint("Coincident", 12, 2, 13, 1),
    Sketcher.Constraint("Coincident", 13, 2, 14, 1),
    Sketcher.Constraint("Coincident", 14, 2, 15, 1),
    Sketcher.Constraint("Coincident", 15, 2, 16, 1),
    Sketcher.Constraint("Coincident", 16, 2, 17, 1),
    Sketcher.Constraint("Coincident", 17, 2, 18, 1),
    Sketcher.Constraint("Coincident", 18, 2, 19, 1),
    Sketcher.Constraint("Coincident", 19, 2, 20, 1),
    Sketcher.Constraint("Coincident", 20, 2, 21, 1),
    Sketcher.Constraint("Coincident", 21, 2, 22, 1),
    Sketcher.Constraint("Coincident", 22, 2, 23, 1),
    Sketcher.Constraint("Coincident", 23, 2, 24, 1),
    Sketcher.Constraint("Coincident", 24, 2, 25, 1),
    Sketcher.Constraint("Coincident", 25, 2, 26, 1),
    Sketcher.Constraint("Coincident", 26, 2, 27, 1),
    Sketcher.Constraint("Coincident", 27, 2, 28, 1),
    Sketcher.Constraint("Coincident", 28, 2, 29, 1),
    Sketcher.Constraint("Coincident", 29, 2, 30, 1),
    Sketcher.Constraint("Coincident", 30, 2, 31, 1),
    Sketcher.Constraint("Coincident", 31, 2, 32, 1),
    Sketcher.Constraint("Coincident", 32, 2, 33, 1),
    Sketcher.Constraint("Coincident", 33, 2, 34, 1),
    Sketcher.Constraint("Coincident", 34, 2, 35, 1),
    Sketcher.Constraint("Coincident", 35, 2, 0, 1),
    Sketcher.Constraint("Horizontal", 0),
    Sketcher.Constraint("Vertical", 1),
    Sketcher.Constraint("Horizontal", 2),
    Sketcher.Constraint("Vertical", 3),
    Sketcher.Constraint("Horizontal", 4),
    Sketcher.Constraint("Vertical", 5),
    Sketcher.Constraint("Horizontal", 6),
    Sketcher.Constraint("Vertical", 7),
    Sketcher.Constraint("Horizontal", 8),
    Sketcher.Constraint("Vertical", 9),
    Sketcher.Constraint("Horizontal", 10),
    Sketcher.Constraint("Vertical", 11),
    Sketcher.Constraint("Horizontal", 12),
    Sketcher.Constraint("Vertical", 13),
    Sketcher.Constraint("Horizontal", 14),
    Sketcher.Constraint("Vertical", 15),
    Sketcher.Constraint("Horizontal", 16),
    Sketcher.Constraint("Vertical", 17),
    Sketcher.Constraint("Horizontal", 18),
    Sketcher.Constraint("Vertical", 19),
    Sketcher.Constraint("Horizontal", 20),
    Sketcher.Constraint("Vertical", 21),
    Sketcher.Constraint("Horizontal", 22),
    Sketcher.Constraint("Vertical", 23),
    Sketcher.Constraint("Horizontal", 24),
    Sketcher.Constraint("Vertical", 25),
    Sketcher.Constraint("Horizontal", 26),
    Sketcher.Constraint("Vertical", 27),
    Sketcher.Constraint("Horizontal", 28),
    Sketcher.Constraint("Vertical", 29),
    Sketcher.Constraint("Horizontal", 30),
    Sketcher.Constraint("Vertical", 31),
    Sketcher.Constraint("Horizontal", 32),
    Sketcher.Constraint("Vertical", 33),
    Sketcher.Constraint("Horizontal", 34),
    Sketcher.Constraint("Vertical", 35),
    Sketcher.Constraint("Coincident", 1, 2, -1, 1),
    Sketcher.Constraint("Equal", 4, 6),
    Sketcher.Constraint("Equal", 6, 8),
    Sketcher.Constraint("Equal", 8, 10),
    Sketcher.Constraint("Equal", 10, 12),
    Sketcher.Constraint("Equal", 12, 14),
    Sketcher.Constraint("Equal", 14, 16),
    Sketcher.Constraint("Equal", 16, 18),
    Sketcher.Constraint("Equal", 18, 20),
    Sketcher.Constraint("Equal", 20, 22),
    Sketcher.Constraint("Equal", 22, 24),
    Sketcher.Constraint("Equal", 24, 26),
    Sketcher.Constraint("Equal", 26, 30),
    Sketcher.Constraint("Equal", 28, 32),
    Sketcher.Constraint("Equal", 30, 34),
    Sketcher.Constraint("Equal", 0, 5),
    Sketcher.Constraint("Equal", 34, 9),
    Sketcher.Constraint("Equal", 9, 11),
    Sketcher.Constraint("Equal", 11, 13),
    Sketcher.Constraint("Equal", 13, 15),
    Sketcher.Constraint("Equal", 15, 17),
    Sketcher.Constraint("Equal", 17, 19),
    Sketcher.Constraint("Equal", 19, 21),
    Sketcher.Constraint("Equal", 21, 23),
    Sketcher.Constraint("Equal", 23, 25),
    Sketcher.Constraint("Equal", 25, 27),
    Sketcher.Constraint("Equal", 27, 29),
    Sketcher.Constraint("Equal", 29, 31),
    Sketcher.Constraint("Equal", 31, 33),
    Sketcher.Constraint("Equal", 33, 35),
    Sketcher.Constraint("DistanceX", 0, 2, 0, 1, 2.0),
    Sketcher.Constraint("DistanceX", 2, 1, 2, 2, 12.0),
    Sketcher.Constraint("DistanceY", 7, 2, 7, 1, 1.0),
    Sketcher.Constraint("DistanceX", 4, 2, 4, 1, 0.5),
    Sketcher.Constraint("DistanceY", 1, 1, 1, 2, 12.5),
])
pocket4 = body.newObject("PartDesign::Pocket", "Pocket003")
pocket4.Profile = sketch5
pocket4.Length = 43
pocket4.Midplane = True

# Sketch on YZ plane
sketch6 = body.newObject("Sketcher::SketchObject", "Sketch005")
sketch6.AttachmentSupport = (doc.getObject("YZ_Plane"), [""])
sketch6.MapMode = "FlatFace"
sketch6.addGeometry([
    Part.LineSegment(App.Vector(0, -30.5, 0), App.Vector(0, -20.5, 0)),  # 0
    Part.LineSegment(App.Vector(0, -20.5, 0), App.Vector(1, -20.5, 0)),  # 1
    Part.LineSegment(App.Vector(1, -20.5, 0), App.Vector(1, -19.5, 0)),  # 2
    Part.LineSegment(App.Vector(1, -19.5, 0), App.Vector(3, -19.5, 0)),  # 3
    Part.LineSegment(App.Vector(3, -19.5, 0), App.Vector(3, -18.5, 0)),  # 4
    Part.LineSegment(App.Vector(3, -18.5, 0), App.Vector(5.5, -18.5, 0)),  # 5
    Part.LineSegment(App.Vector(5.5, -18.5, 0), App.Vector(5.5, -17.5, 0)),  # 6
    Part.LineSegment(App.Vector(5.5, -17.5, 0), App.Vector(8, -17.5, 0)),  # 7
    Part.LineSegment(App.Vector(8, -17.5, 0), App.Vector(8, -16.5, 0)),  # 8
    Part.LineSegment(App.Vector(8, -16.5, 0), App.Vector(10.5, -16.5, 0)),  # 9
    Part.LineSegment(App.Vector(10.5, -16.5, 0), App.Vector(10.5, -15.5, 0)),  # 10
    Part.LineSegment(App.Vector(10.5, -15.5, 0), App.Vector(13, -15.5, 0)),  # 11
    Part.LineSegment(App.Vector(13, -15.5, 0), App.Vector(13, -14.5, 0)),  # 12
    Part.LineSegment(App.Vector(13, -14.5, 0), App.Vector(16, -14.5, 0)),  # 13
    Part.LineSegment(App.Vector(16, -14.5, 0), App.Vector(16, -13.5, 0)),  # 14
    Part.LineSegment(App.Vector(16, -13.5, 0), App.Vector(19, -13.5, 0)),  # 15
    Part.LineSegment(App.Vector(19, -13.5, 0), App.Vector(19, -12.5, 0)),  # 16
    Part.LineSegment(App.Vector(19, -12.5, 0), App.Vector(22, -12.5, 0)),  # 17
    Part.LineSegment(App.Vector(22, -12.5, 0), App.Vector(22, -11.5, 0)),  # 18
    Part.LineSegment(App.Vector(22, -11.5, 0), App.Vector(25.5, -11.5, 0)),  # 19
    Part.LineSegment(App.Vector(25.5, -11.5, 0), App.Vector(25.5, -10.5, 0)),  # 20
    Part.LineSegment(App.Vector(25.5, -10.5, 0), App.Vector(29, -10.5, 0)),  # 21
    Part.LineSegment(App.Vector(29, -10.5, 0), App.Vector(29, -9.5, 0)),  # 22
    Part.LineSegment(App.Vector(29, -9.5, 0), App.Vector(33, -9.5, 0)),  # 23
    Part.LineSegment(App.Vector(33, -9.5, 0), App.Vector(33, -8.5, 0)),  # 24
    Part.LineSegment(App.Vector(33, -8.5, 0), App.Vector(37.5, -8.5, 0)),  # 25
    Part.LineSegment(App.Vector(37.5, -8.5, 0), App.Vector(37.5, -7.5, 0)),  # 26
    Part.LineSegment(App.Vector(37.5, -7.5, 0), App.Vector(42.5, -7.5, 0)),  # 27
    Part.LineSegment(App.Vector(42.5, -7.5, 0), App.Vector(42.5, -6.5, 0)),  # 28
    Part.LineSegment(App.Vector(42.5, -6.5, 0), App.Vector(47.5, -6.5, 0)),  # 29
    Part.LineSegment(App.Vector(47.5, -6.5, 0), App.Vector(47.5, -5.5, 0)),  # 30
    Part.LineSegment(App.Vector(47.5, -5.5, 0), App.Vector(53.5, -5.5, 0)),  # 31
    Part.LineSegment(App.Vector(53.5, -5.5, 0), App.Vector(53.5, -4.5, 0)),  # 32
    Part.LineSegment(App.Vector(53.5, -4.5, 0), App.Vector(60.5, -4.5, 0)),  # 33
    Part.LineSegment(App.Vector(60.5, -4.5, 0), App.Vector(60.5, -3.5, 0)),  # 34
    Part.LineSegment(App.Vector(60.5, -3.5, 0), App.Vector(70.5, -3.5, 0)),  # 35
    Part.LineSegment(App.Vector(70.5, -3.5, 0), App.Vector(70.5, -2.5, 0)),  # 36
    Part.LineSegment(App.Vector(70.5, -2.5, 0), App.Vector(93, -2.5, 0)),  # 37
    Part.LineSegment(App.Vector(93, -2.5, 0), App.Vector(93, 0, 0)),  # 38
    Part.LineSegment(App.Vector(93, 0, 0), App.Vector(118, 0, 0)),  # 39
    Part.LineSegment(App.Vector(118, 0, 0), App.Vector(118, -30.5, 0)),  # 40
    Part.LineSegment(App.Vector(118, -30.5, 0), App.Vector(0, -30.5, 0)),  # 41
], False)
sketch6.addConstraint([
    Sketcher.Constraint("Coincident", 0, 2, 1, 1),
    Sketcher.Constraint("Coincident", 1, 2, 2, 1),
    Sketcher.Constraint("Coincident", 2, 2, 3, 1),
    Sketcher.Constraint("Coincident", 3, 2, 4, 1),
    Sketcher.Constraint("Coincident", 4, 2, 5, 1),
    Sketcher.Constraint("Coincident", 5, 2, 6, 1),
    Sketcher.Constraint("Coincident", 6, 2, 7, 1),
    Sketcher.Constraint("Coincident", 7, 2, 8, 1),
    Sketcher.Constraint("Coincident", 8, 2, 9, 1),
    Sketcher.Constraint("Coincident", 9, 2, 10, 1),
    Sketcher.Constraint("Coincident", 10, 2, 11, 1),
    Sketcher.Constraint("Coincident", 11, 2, 12, 1),
    Sketcher.Constraint("Coincident", 12, 2, 13, 1),
    Sketcher.Constraint("Coincident", 13, 2, 14, 1),
    Sketcher.Constraint("Coincident", 14, 2, 15, 1),
    Sketcher.Constraint("Coincident", 15, 2, 16, 1),
    Sketcher.Constraint("Coincident", 16, 2, 17, 1),
    Sketcher.Constraint("Coincident", 17, 2, 18, 1),
    Sketcher.Constraint("Coincident", 18, 2, 19, 1),
    Sketcher.Constraint("Coincident", 19, 2, 20, 1),
    Sketcher.Constraint("Coincident", 20, 2, 21, 1),
    Sketcher.Constraint("Coincident", 21, 2, 22, 1),
    Sketcher.Constraint("Coincident", 22, 2, 23, 1),
    Sketcher.Constraint("Coincident", 23, 2, 24, 1),
    Sketcher.Constraint("Coincident", 24, 2, 25, 1),
    Sketcher.Constraint("Coincident", 25, 2, 26, 1),
    Sketcher.Constraint("Coincident", 26, 2, 27, 1),
    Sketcher.Constraint("Coincident", 27, 2, 28, 1),
    Sketcher.Constraint("Coincident", 28, 2, 29, 1),
    Sketcher.Constraint("Coincident", 29, 2, 30, 1),
    Sketcher.Constraint("Coincident", 30, 2, 31, 1),
    Sketcher.Constraint("Coincident", 31, 2, 32, 1),
    Sketcher.Constraint("Coincident", 32, 2, 33, 1),
    Sketcher.Constraint("Coincident", 33, 2, 34, 1),
    Sketcher.Constraint("Coincident", 34, 2, 35, 1),
    Sketcher.Constraint("Coincident", 35, 2, 36, 1),
    Sketcher.Constraint("Coincident", 36, 2, 37, 1),
    Sketcher.Constraint("Coincident", 37, 2, 38, 1),
    Sketcher.Constraint("Coincident", 38, 2, 39, 1),
    Sketcher.Constraint("Coincident", 39, 2, 40, 1),
    Sketcher.Constraint("Coincident", 40, 2, 41, 1),
    Sketcher.Constraint("Coincident", 41, 2, 0, 1),
    Sketcher.Constraint("Vertical", 0),
    Sketcher.Constraint("Horizontal", 1),
    Sketcher.Constraint("Vertical", 2),
    Sketcher.Constraint("Horizontal", 3),
    Sketcher.Constraint("Vertical", 4),
    Sketcher.Constraint("Horizontal", 5),
    Sketcher.Constraint("Vertical", 6),
    Sketcher.Constraint("Horizontal", 7),
    Sketcher.Constraint("Vertical", 8),
    Sketcher.Constraint("Horizontal", 9),
    Sketcher.Constraint("Vertical", 10),
    Sketcher.Constraint("Horizontal", 11),
    Sketcher.Constraint("Vertical", 12),
    Sketcher.Constraint("Horizontal", 13),
    Sketcher.Constraint("Vertical", 14),
    Sketcher.Constraint("Horizontal", 15),
    Sketcher.Constraint("Vertical", 16),
    Sketcher.Constraint("Horizontal", 17),
    Sketcher.Constraint("Vertical", 18),
    Sketcher.Constraint("Horizontal", 19),
    Sketcher.Constraint("Vertical", 20),
    Sketcher.Constraint("Horizontal", 21),
    Sketcher.Constraint("Vertical", 22),
    Sketcher.Constraint("Horizontal", 23),
    Sketcher.Constraint("Vertical", 24),
    Sketcher.Constraint("Horizontal", 25),
    Sketcher.Constraint("Vertical", 26),
    Sketcher.Constraint("Horizontal", 27),
    Sketcher.Constraint("Vertical", 28),
    Sketcher.Constraint("Horizontal", 29),
    Sketcher.Constraint("Vertical", 30),
    Sketcher.Constraint("Horizontal", 31),
    Sketcher.Constraint("Vertical", 32),
    Sketcher.Constraint("Horizontal", 33),
    Sketcher.Constraint("Vertical", 34),
    Sketcher.Constraint("Horizontal", 35),
    Sketcher.Constraint("Vertical", 36),
    Sketcher.Constraint("Horizontal", 37),
    Sketcher.Constraint("Vertical", 38),
    Sketcher.Constraint("Horizontal", 39),
    Sketcher.Constraint("Vertical", 40),
    Sketcher.Constraint("Horizontal", 41),
    Sketcher.Constraint("PointOnObject", 0, 2, -2),
    Sketcher.Constraint("PointOnObject", 38, 2, -1),
    Sketcher.Constraint("Equal", 5, 7),
    Sketcher.Constraint("Equal", 7, 9),
    Sketcher.Constraint("Equal", 9, 11),
    Sketcher.Constraint("Equal", 13, 15),
    Sketcher.Constraint("Equal", 15, 17),
    Sketcher.Constraint("Equal", 19, 21),
    Sketcher.Constraint("Equal", 27, 29),
    Sketcher.Constraint("Equal", 35, 0),
    Sketcher.Constraint("Equal", 1, 2),
    Sketcher.Constraint("Equal", 2, 4),
    Sketcher.Constraint("Equal", 4, 6),
    Sketcher.Constraint("Equal", 6, 8),
    Sketcher.Constraint("Equal", 8, 10),
    Sketcher.Constraint("Equal", 10, 12),
    Sketcher.Constraint("Equal", 12, 14),
    Sketcher.Constraint("Equal", 14, 16),
    Sketcher.Constraint("Equal", 16, 18),
    Sketcher.Constraint("Equal", 18, 20),
    Sketcher.Constraint("Equal", 20, 22),
    Sketcher.Constraint("Equal", 22, 24),
    Sketcher.Constraint("Equal", 24, 26),
    Sketcher.Constraint("Equal", 26, 28),
    Sketcher.Constraint("Equal", 28, 30),
    Sketcher.Constraint("Equal", 30, 32),
    Sketcher.Constraint("Equal", 32, 34),
    Sketcher.Constraint("Equal", 34, 36),
    Sketcher.Constraint("Equal", 11, 38),
    Sketcher.Constraint("DistanceX", 1, 1, 1, 2, 1.0),
    Sketcher.Constraint("DistanceX", 3, 1, 3, 2, 2.0),
    Sketcher.Constraint("DistanceX", 13, 1, 13, 2, 3.0),
    Sketcher.Constraint("DistanceX", 23, 1, 23, 2, 4.0),
    Sketcher.Constraint("DistanceX", 27, 1, 27, 2, 5.0),
    Sketcher.Constraint("DistanceX", 31, 1, 31, 2, 6.0),
    Sketcher.Constraint("DistanceX", 33, 1, 33, 2, 7.0),
    Sketcher.Constraint("DistanceX", 35, 1, 35, 2, 10.0),
    Sketcher.Constraint("DistanceX", 39, 1, 39, 2, 25.0),
    Sketcher.Constraint("DistanceX", 41, 2, 41, 1, 118.0),
    Sketcher.Constraint("DistanceX", 5, 1, 5, 2, 2.5),
    Sketcher.Constraint("DistanceX", 19, 1, 19, 2, 3.5),
    Sketcher.Constraint("DistanceX", 25, 1, 25, 2, 4.5),
])
pocket5 = body.newObject("PartDesign::Pocket", "Pocket004")
pocket5.Profile = sketch6
pocket5.Length = 43
pocket5.Midplane = True

# Sketch on YZ plane
sketch7 = body.newObject("Sketcher::SketchObject", "Sketch006")
sketch7.AttachmentSupport = (doc.getObject("YZ_Plane"), [""])
sketch7.MapMode = "FlatFace"
sketch7.addGeometry([
    Part.LineSegment(App.Vector(19, -7.5, 0), App.Vector(19, 0, 0)),  # 0
    Part.LineSegment(App.Vector(19, 0, 0), App.Vector(35, 0, 0)),  # 1
    Part.LineSegment(App.Vector(35, 0, 0), App.Vector(35, -3.5, 0)),  # 2
    Part.LineSegment(App.Vector(35, -3.5, 0), App.Vector(33, -3.5, 0)),  # 3
    Part.LineSegment(App.Vector(33, -3.5, 0), App.Vector(33, -4.5, 0)),  # 4
    Part.LineSegment(App.Vector(33, -4.5, 0), App.Vector(29, -4.5, 0)),  # 5
    Part.LineSegment(App.Vector(29, -4.5, 0), App.Vector(29, -5.5, 0)),  # 6
    Part.LineSegment(App.Vector(29, -5.5, 0), App.Vector(25.5, -5.5, 0)),  # 7
    Part.LineSegment(App.Vector(25.5, -5.5, 0), App.Vector(25.5, -6.5, 0)),  # 8
    Part.LineSegment(App.Vector(25.5, -6.5, 0), App.Vector(22, -6.5, 0)),  # 9
    Part.LineSegment(App.Vector(22, -6.5, 0), App.Vector(22, -7.5, 0)),  # 10
    Part.LineSegment(App.Vector(22, -7.5, 0), App.Vector(19, -7.5, 0)),  # 11
], False)
sketch7.addConstraint([
    Sketcher.Constraint("Coincident", 0, 2, 1, 1),
    Sketcher.Constraint("Coincident", 1, 2, 2, 1),
    Sketcher.Constraint("Coincident", 2, 2, 3, 1),
    Sketcher.Constraint("Coincident", 3, 2, 4, 1),
    Sketcher.Constraint("Coincident", 4, 2, 5, 1),
    Sketcher.Constraint("Coincident", 5, 2, 6, 1),
    Sketcher.Constraint("Coincident", 6, 2, 7, 1),
    Sketcher.Constraint("Coincident", 7, 2, 8, 1),
    Sketcher.Constraint("Coincident", 8, 2, 9, 1),
    Sketcher.Constraint("Coincident", 9, 2, 10, 1),
    Sketcher.Constraint("Coincident", 10, 2, 11, 1),
    Sketcher.Constraint("Coincident", 11, 2, 0, 1),
    Sketcher.Constraint("Vertical", 0),
    Sketcher.Constraint("Horizontal", 1),
    Sketcher.Constraint("Vertical", 2),
    Sketcher.Constraint("Horizontal", 3),
    Sketcher.Constraint("Vertical", 4),
    Sketcher.Constraint("Horizontal", 5),
    Sketcher.Constraint("Vertical", 6),
    Sketcher.Constraint("Horizontal", 7),
    Sketcher.Constraint("Vertical", 8),
    Sketcher.Constraint("Horizontal", 9),
    Sketcher.Constraint("Vertical", 10),
    Sketcher.Constraint("Horizontal", 11),
    Sketcher.Constraint("PointOnObject", 0, 2, -1),
    Sketcher.Constraint("Equal", 7, 9),
    Sketcher.Constraint("Equal", 9, 2),
    Sketcher.Constraint("Equal", 4, 6),
    Sketcher.Constraint("Equal", 6, 8),
    Sketcher.Constraint("Equal", 8, 10),
    Sketcher.Constraint("DistanceX", 1, 1, 1, 2, 16.0),
    Sketcher.Constraint("DistanceX", 3, 2, 3, 1, 2.0),
    Sketcher.Constraint("DistanceX", 5, 2, 5, 1, 4.0),
    Sketcher.Constraint("DistanceX", 11, 2, 11, 1, 3.0),
    Sketcher.Constraint("DistanceY", 4, 2, 4, 1, 1.0),
    Sketcher.Constraint("DistanceX", -1, 1, 0, 2, 19.0),
])
pocket6 = body.newObject("PartDesign::Pocket", "Pocket005")
pocket6.Profile = sketch7
pocket6.Length = 43
pocket6.Midplane = True

doc.recompute()
